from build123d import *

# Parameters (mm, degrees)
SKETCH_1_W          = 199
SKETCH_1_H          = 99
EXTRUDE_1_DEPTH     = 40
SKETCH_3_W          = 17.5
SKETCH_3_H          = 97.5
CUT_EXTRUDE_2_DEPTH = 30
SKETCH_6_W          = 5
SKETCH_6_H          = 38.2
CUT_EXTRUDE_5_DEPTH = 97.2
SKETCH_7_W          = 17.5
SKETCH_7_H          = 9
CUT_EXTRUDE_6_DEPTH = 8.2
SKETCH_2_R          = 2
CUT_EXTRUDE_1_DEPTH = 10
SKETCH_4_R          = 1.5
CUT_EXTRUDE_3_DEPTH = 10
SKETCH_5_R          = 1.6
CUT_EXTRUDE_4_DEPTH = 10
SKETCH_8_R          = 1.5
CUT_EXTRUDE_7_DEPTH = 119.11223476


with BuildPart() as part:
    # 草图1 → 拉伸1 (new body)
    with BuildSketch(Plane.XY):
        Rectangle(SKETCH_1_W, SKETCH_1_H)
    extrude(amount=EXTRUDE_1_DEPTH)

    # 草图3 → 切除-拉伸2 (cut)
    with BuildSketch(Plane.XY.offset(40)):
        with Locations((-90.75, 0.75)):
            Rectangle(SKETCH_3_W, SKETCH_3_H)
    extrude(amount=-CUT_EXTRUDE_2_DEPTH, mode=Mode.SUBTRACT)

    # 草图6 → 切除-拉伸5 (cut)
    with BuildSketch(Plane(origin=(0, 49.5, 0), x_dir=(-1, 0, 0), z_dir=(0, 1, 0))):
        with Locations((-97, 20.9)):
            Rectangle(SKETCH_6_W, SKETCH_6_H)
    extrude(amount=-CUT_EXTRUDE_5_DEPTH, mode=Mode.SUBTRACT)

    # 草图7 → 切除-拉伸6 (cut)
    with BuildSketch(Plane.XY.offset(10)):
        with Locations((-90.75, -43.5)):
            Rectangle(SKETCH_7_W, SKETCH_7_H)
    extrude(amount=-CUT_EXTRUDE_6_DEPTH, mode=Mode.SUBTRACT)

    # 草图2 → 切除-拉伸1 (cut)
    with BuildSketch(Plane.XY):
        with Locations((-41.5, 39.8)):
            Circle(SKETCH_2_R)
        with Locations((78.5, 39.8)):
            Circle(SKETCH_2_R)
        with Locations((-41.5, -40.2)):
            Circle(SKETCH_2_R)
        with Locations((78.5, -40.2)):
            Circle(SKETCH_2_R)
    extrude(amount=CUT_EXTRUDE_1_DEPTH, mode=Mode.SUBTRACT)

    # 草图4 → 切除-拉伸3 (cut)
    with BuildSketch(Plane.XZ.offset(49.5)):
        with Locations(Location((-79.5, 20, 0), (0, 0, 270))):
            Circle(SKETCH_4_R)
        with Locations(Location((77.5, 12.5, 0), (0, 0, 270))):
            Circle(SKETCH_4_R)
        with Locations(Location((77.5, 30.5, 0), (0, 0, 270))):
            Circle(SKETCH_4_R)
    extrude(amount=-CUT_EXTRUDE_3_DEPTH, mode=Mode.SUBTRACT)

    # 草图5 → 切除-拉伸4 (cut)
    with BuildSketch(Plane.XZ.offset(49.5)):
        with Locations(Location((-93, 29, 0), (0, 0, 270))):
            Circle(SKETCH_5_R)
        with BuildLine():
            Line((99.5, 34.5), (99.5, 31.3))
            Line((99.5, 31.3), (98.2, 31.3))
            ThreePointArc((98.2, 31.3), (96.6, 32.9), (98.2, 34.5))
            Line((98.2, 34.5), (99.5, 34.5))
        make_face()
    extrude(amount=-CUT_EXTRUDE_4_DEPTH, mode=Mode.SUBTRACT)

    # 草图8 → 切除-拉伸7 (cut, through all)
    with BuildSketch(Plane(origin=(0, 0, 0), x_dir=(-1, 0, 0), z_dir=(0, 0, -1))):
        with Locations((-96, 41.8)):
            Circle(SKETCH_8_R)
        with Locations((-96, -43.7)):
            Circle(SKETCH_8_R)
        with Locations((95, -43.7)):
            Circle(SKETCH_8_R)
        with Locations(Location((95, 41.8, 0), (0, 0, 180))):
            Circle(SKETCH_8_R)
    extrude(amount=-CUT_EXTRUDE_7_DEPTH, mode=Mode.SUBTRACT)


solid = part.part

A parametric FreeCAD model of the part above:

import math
import FreeCAD as App
import Part
import Sketcher
Q = App.Units.Quantity

doc = App.newDocument("Part")
body = doc.addObject("PartDesign::Body", "Body")

sketch1 = body.newObject("Sketcher::SketchObject", "Sketch")
sketch1.AttachmentSupport = (doc.getObject("XY_Plane"), [""])
sketch1.MapMode = "FlatFace"
sketch1.addGeometry([
    Part.LineSegment(App.Vector(-100, 50, 0), App.Vector(-100, -50, 0)),
    Part.LineSegment(App.Vector(-100, -50, 0), App.Vector(100, -50, 0)),
    Part.LineSegment(App.Vector(100, -50, 0), App.Vector(100, 50, 0)),
    Part.LineSegment(App.Vector(100, 50, 0), App.Vector(-100, 50, 0)),
], False)
sketch1.addConstraint([
    Sketcher.Constraint("Coincident", 0, 2, 1, 1),
    Sketcher.Constraint("Coincident", 1, 2, 2, 1),
    Sketcher.Constraint("Coincident", 2, 2, 3, 1),
    Sketcher.Constraint("Coincident", 3, 2, 0, 1),
    Sketcher.Constraint("Vertical", 0),
    Sketcher.Constraint("Horizontal", 1),
    Sketcher.Constraint("Vertical", 2),
    Sketcher.Constraint("Horizontal", 3),
    Sketcher.Constraint("Symmetric", 0, 2, 2, 2, -1, 1),
    Sketcher.Constraint("DistanceX", 1, 1, 1, 2, Q("199 mm")),
    Sketcher.Constraint("DistanceY", 0, 2, 0, 1, Q("99 mm")),
])
pad1 = body.newObject("PartDesign::Pad", "Pad")
pad1.Profile = sketch1
pad1.Length = 40

sketch2 = body.newObject("Sketcher::SketchObject", "Sketch001")
sketch2.AttachmentSupport = (doc.getObject("XY_Plane"), [""])
sketch2.MapMode = "FlatFace"
sketch2.AttachmentOffset = App.Placement(App.Vector(0, 0, 40), App.Rotation())
sketch2.addGeometry([
    Part.LineSegment(App.Vector(-100, 50, 0), App.Vector(-100, -48, 0)),
    Part.LineSegment(App.Vector(-100, -48, 0), App.Vector(-82, -48, 0)),
    Part.LineSegment(App.Vector(-82, -48, 0), App.Vector(-82, 50, 0)),
    Part.LineSegment(App.Vector(-82, 50, 0), App.Vector(-100, 50, 0)),
], False)
sketch2.addConstraint([
    Sketcher.Constraint("Coincident", 0, 2, 1, 1),
    Sketcher.Constraint("Coincident", 1, 2, 2, 1),
    Sketcher.Constraint("Coincident", 2, 2, 3, 1),
    Sketcher.Constraint("Coincident", 3, 2, 0, 1),
    Sketcher.Constraint("Vertical", 0),
    Sketcher.Constraint("Horizontal", 1),
    Sketcher.Constraint("Vertical", 2),
    Sketcher.Constraint("Horizontal", 3),
    Sketcher.Constraint("DistanceX", 1, 1, 1, 2, Q("17.5 mm")),
    Sketcher.Constraint("DistanceY", 0, 2, 0, 1, Q("97.5 mm")),
    Sketcher.Constraint("DistanceY", 0, 2, -1, 1, Q("48 mm")),
    Sketcher.Constraint("DistanceX", 1, 2, -1, 1, Q("82 mm")),
])
pocket1 = body.newObject("PartDesign::Pocket", "Pocket")
pocket1.Profile = sketch2
pocket1.Length = 30

sketch3 = body.newObject("Sketcher::SketchObject", "Sketch002")
sketch3.AttachmentSupport = (doc.getObject("XZ_Plane"), [""])
sketch3.MapMode = "FlatFace"
sketch3.AttachmentOffset = App.Placement(App.Vector(0, 0, -49.5), App.Rotation())
sketch3.addGeometry([
    Part.LineSegment(App.Vector(100, 40, 0), App.Vector(100, 2, 0)),
    Part.LineSegment(App.Vector(100, 2, 0), App.Vector(94, 2, 0)),
    Part.LineSegment(App.Vector(94, 2, 0), App.Vector(94, 40, 0)),
    Part.LineSegment(App.Vector(94, 40, 0), App.Vector(100, 40, 0)),
], False)
sketch3.addConstraint([
    Sketcher.Constraint("Coincident", 0, 2, 1, 1),
    Sketcher.Constraint("Coincident", 1, 2, 2, 1),
    Sketcher.Constraint("Coincident", 2, 2, 3, 1),
    Sketcher.Constraint("Coincident", 3, 2, 0, 1),
    Sketcher.Constraint("Vertical", 0),
    Sketcher.Constraint("Horizontal", 1),
    Sketcher.Constraint("Vertical", 2),
    Sketcher.Constraint("Horizontal", 3),
    Sketcher.Constraint("DistanceX", 1, 2, 1, 1, Q("5 mm")),
    Sketcher.Constraint("DistanceY", 0, 2, 0, 1, Q("38.2 mm")),
    Sketcher.Constraint("DistanceY", -1, 1, 2, 2, Q("40 mm")),
    Sketcher.Constraint("DistanceX", -1, 1, 0, 2, Q("99.5 mm")),
])
pocket2 = body.newObject("PartDesign::Pocket", "Pocket001")
pocket2.Profile = sketch3
pocket2.Length = 97.2
pocket2.Reversed = True

sketch4 = body.newObject("Sketcher::SketchObject", "Sketch003")
sketch4.AttachmentSupport = (doc.getObject("XY_Plane"), [""])
sketch4.MapMode = "FlatFace"
sketch4.AttachmentOffset = App.Placement(App.Vector(0, 0, 10), App.Rotation())
sketch4.addGeometry([
    Part.LineSegment(App.Vector(-100, -39, 0), App.Vector(-100, -48, 0)),
    Part.LineSegment(App.Vector(-100, -48, 0), App.Vector(-82, -48, 0)),
    Part.LineSegment(App.Vector(-82, -48, 0), App.Vector(-82, -39, 0)),
    Part.LineSegment(App.Vector(-82, -39, 0), App.Vector(-100, -39, 0)),
], False)
sketch4.addConstraint([
    Sketcher.Constraint("Coincident", 0, 2, 1, 1),
    Sketcher.Constraint("Coincident", 1, 2, 2, 1),
    Sketcher.Constraint("Coincident", 2, 2, 3, 1),
    Sketcher.Constraint("Coincident", 3, 2, 0, 1),
    Sketcher.Constraint("Vertical", 0),
    Sketcher.Constraint("Horizontal", 1),
    Sketcher.Constraint("Vertical", 2),
    Sketcher.Constraint("Horizontal", 3),
    Sketcher.Constraint("DistanceY", 0, 2, 0, 1, Q("9 mm")),
    Sketcher.Constraint("DistanceX", 1, 1, 1, 2, Q("17.5 mm")),
    Sketcher.Constraint("DistanceY", 0, 2, -1, 1, Q("48 mm")),
    Sketcher.Constraint("DistanceX", 1, 2, -1, 1, Q("82 mm")),
])
pocket3 = body.newObject("PartDesign::Pocket", "Pocket002")
pocket3.Profile = sketch4
pocket3.Length = 8.2

sketch5 = body.newObject("Sketcher::SketchObject", "Sketch004")
sketch5.AttachmentSupport = (doc.getObject("XY_Plane"), [""])
sketch5.MapMode = "FlatFace"
sketch5.addGeometry([
    Part.Circle(App.Vector(-41.5, 39.8, 0), App.Vector(0, 0, 1), 2),
    Part.Circle(App.Vector(78.5, 39.8, 0), App.Vector(0, 0, 1), 2),
    Part.Circle(App.Vector(-41.5, -40.2, 0), App.Vector(0, 0, 1), 2),
    Part.Circle(App.Vector(78.5, -40.2, 0), App.Vector(0, 0, 1), 2),
], False)
sketch5.addConstraint([
    Sketcher.Constraint("Equal", 0, 1),
    Sketcher.Constraint("Equal", 1, 2),
    Sketcher.Constraint("Equal", 2, 3),
    Sketcher.Constraint("Horizontal", 0, 3, 1, 3),
    Sketcher.Constraint("Horizontal", 2, 3, 3, 3),
    Sketcher.Constraint("Vertical", 0, 3, 2, 3),
    Sketcher.Constraint("Vertical", 1, 3, 3, 3),
    Sketcher.Constraint("Diameter", 0, Q("4 mm")),
    Sketcher.Constraint("DistanceX", 0, 3, 1, 3, Q("120 mm")),
    Sketcher.Constraint("DistanceY", 2, 3, 0, 3, Q("80 mm")),
    Sketcher.Constraint("DistanceX", 0, 3, -1, 1, Q("41.5 mm")),
    Sketcher.Constraint("DistanceY", -1, 1, 0, 3, Q("39.8 mm")),
])
pocket4 = body.newObject("PartDesign::Pocket", "Pocket003")
pocket4.Profile = sketch5
pocket4.Length = 10
pocket4.Reversed = True

sketch6 = body.newObject("Sketcher::SketchObject", "Sketch005")
sketch6.AttachmentSupport = (doc.getObject("XZ_Plane"), [""])
sketch6.MapMode = "FlatFace"
sketch6.AttachmentOffset = App.Placement(App.Vector(0, 0, 49.5), App.Rotation())
sketch6.addGeometry([
    Part.Circle(App.Vector(-79.5, 20, 0), App.Vector(0, 0, 1), 1.5),
    Part.Circle(App.Vector(77.5, 12.5, 0), App.Vector(0, 0, 1), 1.5),
    Part.Circle(App.Vector(77.5, 30.5, 0), App.Vector(0, 0, 1), 1.5),
], False)
sketch6.addConstraint([
    Sketcher.Constraint("Equal", 0, 1),
    Sketcher.Constraint("Equal", 1, 2),
    Sketcher.Constraint("Vertical", 1, 3, 2, 3),
    Sketcher.Constraint("Diameter", 0, Q("3 mm")),
    Sketcher.Constraint("DistanceY", -1, 1, 0, 3, Q("20 mm")),
    Sketcher.Constraint("DistanceX", 0, 3, 1, 3, Q("157 mm")),
    Sketcher.Constraint("DistanceY", 1, 3, 2, 3, Q("18 mm")),
    Sketcher.Constraint("DistanceX", 0, 3, -1, 1, Q("79.5 mm")),
    Sketcher.Constraint("DistanceY", -1, 1, 1, 3, Q("12.5 mm")),
])
pocket5 = body.newObject("PartDesign::Pocket", "Pocket004")
pocket5.Profile = sketch6
pocket5.Length = 10

sketch7 = body.newObject("Sketcher::SketchObject", "Sketch006")
sketch7.AttachmentSupport = (doc.getObject("XZ_Plane"), [""])
sketch7.MapMode = "FlatFace"
sketch7.AttachmentOffset = App.Placement(App.Vector(0, 0, 49.5), App.Rotation())
sketch7.addGeometry([
    Part.Circle(App.Vector(-93, 29, 0), App.Vector(0, 0, 1), 1.6),
    Part.LineSegment(App.Vector(99.5, 31.3, 0), App.Vector(99.5, 34.5, 0)),
    Part.LineSegment(App.Vector(99.5, 34.5, 0), App.Vector(98.2, 34.5, 0)),
    Part.ArcOfCircle(Part.Circle(App.Vector(98.2, 32.9, 0), App.Vector(0, 0, 1), 1.6), math.radians(90), math.radians(270)),
    Part.LineSegment(App.Vector(98.2, 31.3, 0), App.Vector(99.5, 31.3, 0)),
], False)
sketch7.addConstraint([
    Sketcher.Constraint("Coincident", 1, 2, 2, 1),
    Sketcher.Constraint("Tangent", 2, 2, 3, 1),
    Sketcher.Constraint("Tangent", 3, 2, 4, 1),
    Sketcher.Constraint("Coincident", 4, 2, 1, 1),
    Sketcher.Constraint("Vertical", 1),
    Sketcher.Constraint("Horizontal", 2),
    Sketcher.Constraint("Horizontal", 4),
    Sketcher.Constraint("Equal", 0, 3),
    Sketcher.Constraint("Diameter", 0, Q("3.2 mm")),
    Sketcher.Constraint("DistanceX", 2, 2, 2, 1, Q("1.3 mm")),
    Sketcher.Constraint("DistanceX", 0, 3, -1, 1, Q("93 mm")),
    Sketcher.Constraint("DistanceY", -1, 1, 0, 3, Q("29 mm")),
    Sketcher.Constraint("DistanceX", -1, 1, 3, 3, Q("98.2 mm")),
    Sketcher.Constraint("DistanceY", -1, 1, 3, 3, Q("32.9 mm")),
])
pocket6 = body.newObject("PartDesign::Pocket", "Pocket005")
pocket6.Profile = sketch7
pocket6.Length = 10

sketch8 = body.newObject("Sketcher::SketchObject", "Sketch007")
sketch8.AttachmentSupport = (doc.getObject("XY_Plane"), [""])
sketch8.MapMode = "FlatFace"
sketch8.addGeometry([
    Part.Circle(App.Vector(96, 41.8, 0), App.Vector(0, 0, 1), 1.5),
    Part.Circle(App.Vector(96, -43.7, 0), App.Vector(0, 0, 1), 1.5),
    Part.Circle(App.Vector(-95, -43.7, 0), App.Vector(0, 0, 1), 1.5),
    Part.Circle(App.Vector(-95, 41.8, 0), App.Vector(0, 0, 1), 1.5),
], False)
sketch8.addConstraint([
    Sketcher.Constraint("Equal", 0, 1),
    Sketcher.Constraint("Equal", 1, 2),
    Sketcher.Constraint("Equal", 2, 3),
    Sketcher.Constraint("Horizontal", 1, 3, 2, 3),
    Sketcher.Constraint("Horizontal", 0, 3, 3, 3),
    Sketcher.Constraint("Vertical", 0, 3, 1, 3),
    Sketcher.Constraint("Vertical", 2, 3, 3, 3),
    Sketcher.Constraint("Diameter", 0, Q("3 mm")),
    Sketcher.Constraint("DistanceX", -1, 1, 0, 3, Q("96 mm")),
    Sketcher.Constraint("DistanceX", 2, 3, -1, 1, Q("95 mm")),
    Sketcher.Constraint("DistanceY", -1, 1, 0, 3, Q("41.8 mm")),
    Sketcher.Constraint("DistanceY", 1, 3, -1, 1, Q("43.7 mm")),
])
pocket7 = body.newObject("PartDesign::Pocket", "Pocket006")
pocket7.Profile = sketch8
pocket7.Type = "ThroughAll"
pocket7.Reversed = True

doc.recompute()
